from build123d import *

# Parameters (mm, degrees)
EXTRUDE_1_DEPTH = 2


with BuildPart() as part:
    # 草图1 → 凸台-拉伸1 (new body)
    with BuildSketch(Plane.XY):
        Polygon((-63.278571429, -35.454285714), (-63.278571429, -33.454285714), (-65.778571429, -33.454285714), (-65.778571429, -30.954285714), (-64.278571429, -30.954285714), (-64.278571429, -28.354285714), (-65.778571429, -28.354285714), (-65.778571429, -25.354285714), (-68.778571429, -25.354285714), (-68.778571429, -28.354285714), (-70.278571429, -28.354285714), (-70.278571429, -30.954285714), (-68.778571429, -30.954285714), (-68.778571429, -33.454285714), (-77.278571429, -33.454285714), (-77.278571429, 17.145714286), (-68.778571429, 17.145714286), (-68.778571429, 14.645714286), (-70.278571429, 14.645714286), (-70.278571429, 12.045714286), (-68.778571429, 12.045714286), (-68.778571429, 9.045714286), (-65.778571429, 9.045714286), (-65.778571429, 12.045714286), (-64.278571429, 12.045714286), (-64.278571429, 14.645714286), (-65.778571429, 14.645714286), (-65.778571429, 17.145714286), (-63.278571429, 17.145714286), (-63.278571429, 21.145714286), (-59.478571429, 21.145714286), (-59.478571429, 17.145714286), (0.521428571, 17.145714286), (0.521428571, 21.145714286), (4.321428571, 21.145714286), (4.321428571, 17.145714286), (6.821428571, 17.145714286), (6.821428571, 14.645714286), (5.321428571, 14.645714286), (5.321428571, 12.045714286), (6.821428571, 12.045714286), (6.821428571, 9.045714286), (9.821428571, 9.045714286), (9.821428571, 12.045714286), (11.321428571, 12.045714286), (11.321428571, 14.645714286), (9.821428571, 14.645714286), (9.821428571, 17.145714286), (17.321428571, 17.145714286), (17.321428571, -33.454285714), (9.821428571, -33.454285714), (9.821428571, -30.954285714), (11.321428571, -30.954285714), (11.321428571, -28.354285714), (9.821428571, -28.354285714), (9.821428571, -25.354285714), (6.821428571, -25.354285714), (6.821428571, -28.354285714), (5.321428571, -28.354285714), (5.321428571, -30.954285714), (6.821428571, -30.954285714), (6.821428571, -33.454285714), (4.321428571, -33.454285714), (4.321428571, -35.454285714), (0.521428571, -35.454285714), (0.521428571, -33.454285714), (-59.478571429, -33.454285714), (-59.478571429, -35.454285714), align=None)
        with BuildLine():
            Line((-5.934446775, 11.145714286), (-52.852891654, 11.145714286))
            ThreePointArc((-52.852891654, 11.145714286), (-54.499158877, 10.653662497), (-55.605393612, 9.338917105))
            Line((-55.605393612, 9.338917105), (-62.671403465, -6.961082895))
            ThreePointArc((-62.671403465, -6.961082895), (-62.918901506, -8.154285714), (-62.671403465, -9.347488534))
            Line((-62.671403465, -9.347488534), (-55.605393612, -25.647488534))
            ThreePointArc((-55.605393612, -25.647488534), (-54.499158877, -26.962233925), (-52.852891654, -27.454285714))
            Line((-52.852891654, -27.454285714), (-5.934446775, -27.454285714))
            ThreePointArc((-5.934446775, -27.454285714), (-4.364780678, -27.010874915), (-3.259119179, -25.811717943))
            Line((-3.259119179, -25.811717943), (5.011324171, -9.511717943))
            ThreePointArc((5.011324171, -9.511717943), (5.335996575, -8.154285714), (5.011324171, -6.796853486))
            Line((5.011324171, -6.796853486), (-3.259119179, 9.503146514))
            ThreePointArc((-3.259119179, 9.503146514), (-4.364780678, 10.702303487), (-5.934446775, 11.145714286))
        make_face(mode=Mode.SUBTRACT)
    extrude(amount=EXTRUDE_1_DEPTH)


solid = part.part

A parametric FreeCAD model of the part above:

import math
import FreeCAD as App
import Part
import Sketcher

V = App.Vector


def add_polygon(sketch, points):
    """Adds a closed chain of lines whose ends are joined by coincident constraints."""
    first, n = sketch.GeometryCount, len(points)
    for a, b in zip(points, points[1:] + points[:1]):
        sketch.addGeometry(Part.LineSegment(App.Vector(*a, 0), App.Vector(*b, 0)), False)
    for i in range(n):
        sketch.addConstraint(Sketcher.Constraint("Coincident", first + i, 2, first + (i + 1) % n, 1))

doc = App.newDocument("Part")
params = doc.addObject("Spreadsheet::Sheet", "Params")
for row, (alias, value) in enumerate([
    ("sketch1_radius", "3 mm"),
    ("sketch1_width", "60 mm"),
    ("sketch1_width2", "3 mm"),
    ("sketch1_height", "2 mm"),
    ("sketch1_height2", "4 mm"),
    ("pad1_length", "2 mm"),
], start=1):
    params.set(f"A{row}", alias)
    params.set(f"B{row}", "=" + value)
    params.setAlias(f"B{row}", alias)

body = doc.addObject("PartDesign::Body", "Body")

sketch1 = body.newObject("Sketcher::SketchObject", "Sketch")
sketch1.AttachmentSupport = (doc.getObject("XY_Plane"), [""])
sketch1.MapMode = "FlatFace"
add_polygon(sketch1, [(-63.3, -33.5), (-63.3, -35.5), (-59.5, -35.5), (-59.5, -33.5), (0.5, -33.5), (0.5, -35.5), (4.3, -35.5), (4.3, -33.5), (6.8, -33.5), (6.8, -31), (5.3, -31), (5.3, -28.4), (6.8, -28.4), (6.8, -25.4), (9.8, -25.4), (9.8, -28.4), (11.3, -28.4), (11.3, -31), (9.8, -31), (9.8, -33.5), (17.3, -33.5), (17.3, 17.1), (9.8, 17.1), (9.8, 14.6), (11.3, 14.6), (11.3, 12), (9.8, 12), (9.8, 9), (6.8, 9), (6.8, 12), (5.3, 12), (5.3, 14.6), (6.8, 14.6), (6.8, 17.1), (4.3, 17.1), (4.3, 21.1), (0.5, 21.1), (0.5, 17.1), (-59.5, 17.1), (-59.5, 21.1), (-63.3, 21.1), (-63.3, 17.1), (-65.8, 17.1), (-65.8, 14.6), (-64.3, 14.6), (-64.3, 12), (-65.8, 12), (-65.8, 9), (-68.8, 9), (-68.8, 12), (-70.3, 12), (-70.3, 14.6), (-68.8, 14.6), (-68.8, 17.1), (-77.3, 17.1), (-77.3, -33.5), (-68.8, -33.5), (-68.8, -31), (-70.3, -31), (-70.3, -28.4), (-68.8, -28.4), (-68.8, -25.4), (-65.8, -25.4), (-65.8, -28.4), (-64.3, -28.4), (-64.3, -31), (-65.8, -31), (-65.8, -33.5)])
sketch1.addGeometry(Part.ArcOfCircle(Part.Circle(V(-5.9, 8.1, 0), V(0, 0, 1), 3), math.radians(27), math.radians(90)), False)
sketch1.addGeometry(Part.LineSegment(V(-3.3, 9.5, 0), V(5, -6.8, 0)), False)
sketch1.addGeometry(Part.ArcOfCircle(Part.Circle(V(2.3, -8.2, 0), V(0, 0, 1), 3), math.radians(-27), math.radians(27)), False)
sketch1.addGeometry(Part.LineSegment(V(5, -9.5, 0), V(-3.3, -25.8, 0)), False)
sketch1.addGeometry(Part.ArcOfCircle(Part.Circle(V(-5.9, -24.5, 0), V(0, 0, 1), 3), math.radians(-90), math.radians(-27)), False)
sketch1.addGeometry(Part.LineSegment(V(-5.9, -27.5, 0), V(-52.9, -27.5, 0)), False)
sketch1.addGeometry(Part.ArcOfCircle(Part.Circle(V(-52.9, -24.5, 0), V(0, 0, 1), 3), math.radians(-157), math.radians(-90)), False)
sketch1.addGeometry(Part.LineSegment(V(-55.6, -25.6, 0), V(-62.7, -9.3, 0)), False)
sketch1.addGeometry(Part.ArcOfCircle(Part.Circle(V(-59.9, -8.2, 0), V(0, 0, 1), 3), math.radians(157), math.radians(203)), False)
sketch1.addGeometry(Part.LineSegment(V(-62.7, -7, 0), V(-55.6, 9.3, 0)), False)
sketch1.addGeometry(Part.ArcOfCircle(Part.Circle(V(-52.9, 8.1, 0), V(0, 0, 1), 3), math.radians(90), math.radians(157)), False)
sketch1.addGeometry(Part.LineSegment(V(-52.9, 11.1, 0), V(-5.9, 11.1, 0)), False)
sketch1.addConstraint([
    Sketcher.Constraint("Tangent", 68, 1, 69, 1),
    Sketcher.Constraint("Tangent", 69, 2, 70, 2),
    Sketcher.Constraint("Tangent", 70, 1, 71, 1),
    Sketcher.Constraint("Tangent", 71, 2, 72, 2),
    Sketcher.Constraint("Tangent", 72, 1, 73, 1),
    Sketcher.Constraint("Tangent", 73, 2, 74, 2),
    Sketcher.Constraint("Tangent", 74, 1, 75, 1),
    Sketcher.Constraint("Tangent", 75, 2, 76, 2),
    Sketcher.Constraint("Tangent", 76, 1, 77, 1),
    Sketcher.Constraint("Tangent", 77, 2, 78, 2),
    Sketcher.Constraint("Tangent", 78, 1, 79, 1),
    Sketcher.Constraint("Tangent", 79, 2, 68, 2),
    Sketcher.Constraint("Vertical", 0),
    Sketcher.Constraint("Horizontal", 1),
    Sketcher.Constraint("Vertical", 2),
    Sketcher.Constraint("Horizontal", 3),
    Sketcher.Constraint("Vertical", 4),
    Sketcher.Constraint("Horizontal", 5),
    Sketcher.Constraint("Vertical", 6),
    Sketcher.Constraint("Horizontal", 7),
    Sketcher.Constraint("Vertical", 8),
    Sketcher.Constraint("Horizontal", 9),
    Sketcher.Constraint("Vertical", 10),
    Sketcher.Constraint("Horizontal", 11),
    Sketcher.Constraint("Vertical", 12),
    Sketcher.Constraint("Horizontal", 13),
    Sketcher.Constraint("Vertical", 14),
    Sketcher.Constraint("Horizontal", 15),
    Sketcher.Constraint("Vertical", 16),
    Sketcher.Constraint("Horizontal", 17),
    Sketcher.Constraint("Vertical", 18),
    Sketcher.Constraint("Horizontal", 19),
    Sketcher.Constraint("Vertical", 20),
    Sketcher.Constraint("Horizontal", 21),
    Sketcher.Constraint("Vertical", 22),
    Sketcher.Constraint("Horizontal", 23),
    Sketcher.Constraint("Vertical", 24),
    Sketcher.Constraint("Horizontal", 25),
    Sketcher.Constraint("Vertical", 26),
    Sketcher.Constraint("Horizontal", 27),
    Sketcher.Constraint("Vertical", 28),
    Sketcher.Constraint("Horizontal", 29),
    Sketcher.Constraint("Vertical", 30),
    Sketcher.Constraint("Horizontal", 31),
    Sketcher.Constraint("Vertical", 32),
    Sketcher.Constraint("Horizontal", 33),
    Sketcher.Constraint("Vertical", 34),
    Sketcher.Constraint("Horizontal", 35),
    Sketcher.Constraint("Vertical", 36),
    Sketcher.Constraint("Horizontal", 37),
    Sketcher.Constraint("Vertical", 38),
    Sketcher.Constraint("Horizontal", 39),
    Sketcher.Constraint("Vertical", 40),
    Sketcher.Constraint("Horizontal", 41),
    Sketcher.Constraint("Vertical", 42),
    Sketcher.Constraint("Horizontal", 43),
    Sketcher.Constraint("Vertical", 44),
    Sketcher.Constraint("Horizontal", 45),
    Sketcher.Constraint("Vertical", 46),
    Sketcher.Constraint("Horizontal", 47),
    Sketcher.Constraint("Vertical", 48),
    Sketcher.Constraint("Horizontal", 49),
    Sketcher.Constraint("Vertical", 50),
    Sketcher.Constraint("Horizontal", 51),
    Sketcher.Constraint("Vertical", 52),
    Sketcher.Constraint("Horizontal", 53),
    Sketcher.Constraint("Vertical", 54),
    Sketcher.Constraint("Horizontal", 55),
    Sketcher.Constraint("Vertical", 56),
    Sketcher.Constraint("Horizontal", 57),
    Sketcher.Constraint("Vertical", 58),
    Sketcher.Constraint("Horizontal", 59),
    Sketcher.Constraint("Vertical", 60),
    Sketcher.Constraint("Horizontal", 61),
    Sketcher.Constraint("Vertical", 62),
    Sketcher.Constraint("Horizontal", 63),
    Sketcher.Constraint("Vertical", 64),
    Sketcher.Constraint("Horizontal", 65),
    Sketcher.Constraint("Vertical", 66),
    Sketcher.Constraint("Horizontal", 67),
    Sketcher.Constraint("Horizontal", 73),
    Sketcher.Constraint("Horizontal", 79),
    Sketcher.Constraint("Equal", 68, 70),
    Sketcher.Constraint("Equal", 70, 72),
    Sketcher.Constraint("Equal", 72, 74),
    Sketcher.Constraint("Equal", 74, 76),
    Sketcher.Constraint("Equal", 76, 78),
    Sketcher.Constraint("Horizontal", 70, 3, 76, 3),
    Sketcher.Constraint("Horizontal", 1, 2, 4, 2),
    Sketcher.Constraint("Horizontal", 3, 2, 6, 2),
    Sketcher.Constraint("Horizontal", 11, 2, 14, 2),
    Sketcher.Constraint("Horizontal", 9, 2, 16, 2),
    Sketcher.Constraint("Horizontal", 7, 2, 18, 2),
    Sketcher.Constraint("Horizontal", 25, 2, 28, 2),
    Sketcher.Constraint("Horizontal", 23, 2, 30, 2),
    Sketcher.Constraint("Horizontal", 21, 2, 32, 2),
    Sketcher.Constraint("Horizontal", 33, 2, 36, 2),
    Sketcher.Constraint("Horizontal", 35, 2, 38, 2),
    Sketcher.Constraint("Horizontal", 37, 2, 40, 2),
    Sketcher.Constraint("Horizontal", 31, 2, 42, 2),
    Sketcher.Constraint("Horizontal", 29, 2, 44, 2),
    Sketcher.Constraint("Horizontal", 27, 2, 46, 2),
    Sketcher.Constraint("Horizontal", 45, 2, 48, 2),
    Sketcher.Constraint("Horizontal", 43, 2, 50, 2),
    Sketcher.Constraint("Horizontal", 41, 2, 52, 2),
    Sketcher.Constraint("Horizontal", 19, 2, 54, 2),
    Sketcher.Constraint("Horizontal", 17, 2, 56, 2),
    Sketcher.Constraint("Horizontal", 15, 2, 58, 2),
    Sketcher.Constraint("Horizontal", 13, 2, 60, 2),
    Sketcher.Constraint("Horizontal", 59, 2, 62, 2),
    Sketcher.Constraint("Horizontal", 57, 2, 64, 2),
    Sketcher.Constraint("Horizontal", 55, 2, 66, 2),
    Sketcher.Constraint("Vertical", 68, 3, 72, 3),
    Sketcher.Constraint("Vertical", 74, 3, 78, 3),
    Sketcher.Constraint("Vertical", 8, 2, 11, 2),
    Sketcher.Constraint("Vertical", 14, 2, 17, 2),
    Sketcher.Constraint("Vertical", 18, 2, 21, 2),
    Sketcher.Constraint("Vertical", 16, 2, 23, 2),
    Sketcher.Constraint("Vertical", 22, 2, 25, 2),
    Sketcher.Constraint("Vertical", 12, 2, 27, 2),
    Sketcher.Constraint("Vertical", 10, 2, 29, 2),
    Sketcher.Constraint("Vertical", 28, 2, 31, 2),
    Sketcher.Constraint("Vertical", 6, 2, 33, 2),
    Sketcher.Constraint("Vertical", 4, 2, 35, 2),
    Sketcher.Constraint("Vertical", 2, 2, 37, 2),
    Sketcher.Constraint("Vertical", 0, 2, 39, 2),
    Sketcher.Constraint("Vertical", 42, 2, 45, 2),
    Sketcher.Constraint("Vertical", 48, 2, 51, 2),
    Sketcher.Constraint("Vertical", 52, 2, 55, 2),
    Sketcher.Constraint("Vertical", 50, 2, 57, 2),
    Sketcher.Constraint("Vertical", 56, 2, 59, 2),
    Sketcher.Constraint("Vertical", 46, 2, 61, 2),
    Sketcher.Constraint("Vertical", 44, 2, 63, 2),
    Sketcher.Constraint("Vertical", 62, 2, 65, 2),
    Sketcher.Constraint("Vertical", 69, 2, 70, 1),
    Sketcher.Constraint("Equal", 1, 5),
    Sketcher.Constraint("Equal", 11, 15),
    Sketcher.Constraint("Equal", 33, 41),
    Sketcher.Constraint("Equal", 31, 43),
    Sketcher.Constraint("Equal", 27, 47),
    Sketcher.Constraint("Equal", 45, 49),
    Sketcher.Constraint("Equal", 67, 8),
    Sketcher.Constraint("Equal", 61, 12),
    Sketcher.Constraint("Equal", 18, 22),
    Sketcher.Constraint("Equal", 16, 24),
    Sketcher.Constraint("Equal", 14, 26),
    Sketcher.Constraint("Radius", 68, 3.0),
    Sketcher.Constraint("DistanceX", 3, 1, 3, 2, 60.0),
    Sketcher.Constraint("DistanceX", 13, 1, 13, 2, 3.0),
    Sketcher.Constraint("DistanceY", 0, 2, 0, 1, 2.0),
    Sketcher.Constraint("DistanceY", 34, 1, 34, 2, 4.0),
    Sketcher.Constraint("DistanceX", 1, 1, 1, 2, 3.8),
    Sketcher.Constraint("DistanceX", 7, 1, 7, 2, 2.5),
    Sketcher.Constraint("DistanceX", 9, 2, 9, 1, 1.5),
    Sketcher.Constraint("DistanceX", 19, 1, 19, 2, 7.5),
    Sketcher.Constraint("DistanceX", 53, 2, 53, 1, 8.5),
    Sketcher.Constraint("DistanceY", 10, 1, 10, 2, 2.6),
    Sketcher.Constraint("DistanceY", 20, 1, 20, 2, 50.6),
    Sketcher.Constraint("DistanceX", 76, 3, -1, 1, 59.918901),
    Sketcher.Constraint("DistanceX", 73, 2, 73, 1, 46.918445),
    Sketcher.Constraint("DistanceX", 74, 3, -1, 1, 52.852892),
    Sketcher.Constraint("DistanceX", 0, 2, -1, 1, 63.278571),
    Sketcher.Constraint("DistanceX", 68, 1, -1, 1, 3.259119),
    Sketcher.Constraint("DistanceY", 74, 1, -1, 1, 25.647489),
    Sketcher.Constraint("DistanceY", 75, 2, -1, 1, 9.347489),
    Sketcher.Constraint("DistanceY", 0, 2, -1, 1, 35.454286),
])
sketch1.setExpression("Constraints[214]", "Params.sketch1_radius")
sketch1.setExpression("Constraints[215]", "Params.sketch1_width")
sketch1.setExpression("Constraints[216]", "Params.sketch1_width2")
sketch1.setExpression("Constraints[217]", "Params.sketch1_height")
sketch1.setExpression("Constraints[218]", "Params.sketch1_height2")
pad1 = body.newObject("PartDesign::Pad", "Pad")
pad1.Profile = sketch1
pad1.setExpression("Length", "Params.pad1_length")

doc.recompute()
